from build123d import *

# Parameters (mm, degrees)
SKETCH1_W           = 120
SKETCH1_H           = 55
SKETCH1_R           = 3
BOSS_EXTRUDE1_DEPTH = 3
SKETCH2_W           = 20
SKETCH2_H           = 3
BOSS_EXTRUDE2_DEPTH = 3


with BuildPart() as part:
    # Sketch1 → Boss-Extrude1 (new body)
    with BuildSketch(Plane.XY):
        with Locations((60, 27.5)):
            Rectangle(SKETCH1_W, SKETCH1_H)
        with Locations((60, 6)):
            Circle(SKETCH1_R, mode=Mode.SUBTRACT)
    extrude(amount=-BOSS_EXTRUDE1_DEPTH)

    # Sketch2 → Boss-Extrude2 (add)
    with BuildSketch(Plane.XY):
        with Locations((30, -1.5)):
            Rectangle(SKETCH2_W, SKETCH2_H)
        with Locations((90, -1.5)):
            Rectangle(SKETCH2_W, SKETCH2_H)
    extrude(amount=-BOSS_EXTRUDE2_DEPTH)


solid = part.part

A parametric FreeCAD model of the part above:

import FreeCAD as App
import Part
import Sketcher

V = App.Vector
Q = App.Units.Quantity

doc = App.newDocument("Part")
params = doc.addObject("Spreadsheet::Sheet", "Params")
for row, (alias, value) in enumerate([
    ("sketch1_diameter", "6 mm"),
    ("sketch1_width", "120 mm"),
    ("sketch1_height", "55 mm"),
    ("pad1_length", "3 mm"),
    ("sketch2_width", "20 mm"),
    ("sketch2_height", "3 mm"),
    ("pad2_length", "3 mm"),
], start=1):
    params.set(f"A{row}", alias)
    params.set(f"B{row}", "=" + value)
    params.setAlias(f"B{row}", alias)

body = doc.addObject("PartDesign::Body", "Body")

sketch1 = body.newObject("Sketcher::SketchObject", "Sketch")
sketch1.AttachmentSupport = (doc.getObject("XY_Plane"), [""])
sketch1.MapMode = "FlatFace"
sketch1.addGeometry([
    Part.LineSegment(V(0, 55, 0), V(0, 0, 0)),
    Part.LineSegment(V(0, 0, 0), V(120, 0, 0)),
    Part.LineSegment(V(120, 0, 0), V(120, 55, 0)),
    Part.LineSegment(V(120, 55, 0), V(0, 55, 0)),
    Part.Circle(V(60, 6, 0), V(0, 0, 1), 3),
], False)
sketch1.addConstraint([
    Sketcher.Constraint("Coincident", 0, 2, 1, 1),
    Sketcher.Constraint("Coincident", 1, 2, 2, 1),
    Sketcher.Constraint("Coincident", 2, 2, 3, 1),
    Sketcher.Constraint("Coincident", 3, 2, 0, 1),
    Sketcher.Constraint("Vertical", 0),
    Sketcher.Constraint("Horizontal", 1),
    Sketcher.Constraint("Vertical", 2),
    Sketcher.Constraint("Horizontal", 3),
    Sketcher.Constraint("Coincident", 0, 2, -1, 1),
    Sketcher.Constraint("Diameter", 4, Q("6 mm")),
    Sketcher.Constraint("DistanceX", 1, 1, 1, 2, Q("120 mm")),
    Sketcher.Constraint("DistanceY", 0, 2, 0, 1, Q("55 mm")),
    Sketcher.Constraint("DistanceX", -1, 1, 4, 3, Q("60 mm")),
    Sketcher.Constraint("DistanceY", -1, 1, 4, 3, Q("6 mm")),
])
sketch1.setExpression("Constraints[9]", "Params.sketch1_diameter")
sketch1.setExpression("Constraints[10]", "Params.sketch1_width")
sketch1.setExpression("Constraints[11]", "Params.sketch1_height")
pad1 = body.newObject("PartDesign::Pad", "Pad")
pad1.Profile = sketch1
pad1.setExpression("Length", "Params.pad1_length")
pad1.Reversed = True

sketch2 = body.newObject("Sketcher::SketchObject", "Sketch001")
sketch2.AttachmentSupport = (doc.getObject("XY_Plane"), [""])
sketch2.MapMode = "FlatFace"
sketch2.addGeometry([
    Part.LineSegment(V(20, 0, 0), V(20, -3, 0)),
    Part.LineSegment(V(20, -3, 0), V(40, -3, 0)),
    Part.LineSegment(V(40, -3, 0), V(40, 0, 0)),
    Part.LineSegment(V(40, 0, 0), V(20, 0, 0)),
    Part.LineSegment(V(80, 0, 0), V(80, -3, 0)),
    Part.LineSegment(V(80, -3, 0), V(100, -3, 0)),
    Part.LineSegment(V(100, -3, 0), V(100, 0, 0)),
    Part.LineSegment(V(100, 0, 0), V(80, 0, 0)),
], False)
sketch2.addConstraint([
    Sketcher.Constraint("Coincident", 0, 2, 1, 1),
    Sketcher.Constraint("Coincident", 1, 2, 2, 1),
    Sketcher.Constraint("Coincident", 2, 2, 3, 1),
    Sketcher.Constraint("Coincident", 3, 2, 0, 1),
    Sketcher.Constraint("Coincident", 4, 2, 5, 1),
    Sketcher.Constraint("Coincident", 5, 2, 6, 1),
    Sketcher.Constraint("Coincident", 6, 2, 7, 1),
    Sketcher.Constraint("Coincident", 7, 2, 4, 1),
    Sketcher.Constraint("Vertical", 0),
    Sketcher.Constraint("Horizontal", 1),
    Sketcher.Constraint("Vertical", 2),
    Sketcher.Constraint("Horizontal", 3),
    Sketcher.Constraint("Vertical", 4),
    Sketcher.Constraint("Horizontal", 5),
    Sketcher.Constraint("Vertical", 6),
    Sketcher.Constraint("Horizontal", 7),
    Sketcher.Constraint("PointOnObject", 2, 2, -1),
    Sketcher.Constraint("PointOnObject", 6, 2, -1),
    Sketcher.Constraint("Horizontal", 1, 2, 4, 2),
    Sketcher.Constraint("Equal", 3, 5),
    Sketcher.Constraint("DistanceX", 1, 1, 1, 2, Q("20 mm")),
    Sketcher.Constraint("DistanceY", 0, 2, 0, 1, Q("3 mm")),
    Sketcher.Constraint("DistanceX", -1, 1, 0, 2, Q("20 mm")),
    Sketcher.Constraint("DistanceX", -1, 1, 4, 2, Q("80 mm")),
])
sketch2.setExpression("Constraints[20]", "Params.sketch2_width")
sketch2.setExpression("Constraints[21]", "Params.sketch2_height")
pad2 = body.newObject("PartDesign::Pad", "Pad001")
pad2.Profile = sketch2
pad2.setExpression("Length", "Params.pad2_length")
pad2.Reversed = True

doc.recompute()
